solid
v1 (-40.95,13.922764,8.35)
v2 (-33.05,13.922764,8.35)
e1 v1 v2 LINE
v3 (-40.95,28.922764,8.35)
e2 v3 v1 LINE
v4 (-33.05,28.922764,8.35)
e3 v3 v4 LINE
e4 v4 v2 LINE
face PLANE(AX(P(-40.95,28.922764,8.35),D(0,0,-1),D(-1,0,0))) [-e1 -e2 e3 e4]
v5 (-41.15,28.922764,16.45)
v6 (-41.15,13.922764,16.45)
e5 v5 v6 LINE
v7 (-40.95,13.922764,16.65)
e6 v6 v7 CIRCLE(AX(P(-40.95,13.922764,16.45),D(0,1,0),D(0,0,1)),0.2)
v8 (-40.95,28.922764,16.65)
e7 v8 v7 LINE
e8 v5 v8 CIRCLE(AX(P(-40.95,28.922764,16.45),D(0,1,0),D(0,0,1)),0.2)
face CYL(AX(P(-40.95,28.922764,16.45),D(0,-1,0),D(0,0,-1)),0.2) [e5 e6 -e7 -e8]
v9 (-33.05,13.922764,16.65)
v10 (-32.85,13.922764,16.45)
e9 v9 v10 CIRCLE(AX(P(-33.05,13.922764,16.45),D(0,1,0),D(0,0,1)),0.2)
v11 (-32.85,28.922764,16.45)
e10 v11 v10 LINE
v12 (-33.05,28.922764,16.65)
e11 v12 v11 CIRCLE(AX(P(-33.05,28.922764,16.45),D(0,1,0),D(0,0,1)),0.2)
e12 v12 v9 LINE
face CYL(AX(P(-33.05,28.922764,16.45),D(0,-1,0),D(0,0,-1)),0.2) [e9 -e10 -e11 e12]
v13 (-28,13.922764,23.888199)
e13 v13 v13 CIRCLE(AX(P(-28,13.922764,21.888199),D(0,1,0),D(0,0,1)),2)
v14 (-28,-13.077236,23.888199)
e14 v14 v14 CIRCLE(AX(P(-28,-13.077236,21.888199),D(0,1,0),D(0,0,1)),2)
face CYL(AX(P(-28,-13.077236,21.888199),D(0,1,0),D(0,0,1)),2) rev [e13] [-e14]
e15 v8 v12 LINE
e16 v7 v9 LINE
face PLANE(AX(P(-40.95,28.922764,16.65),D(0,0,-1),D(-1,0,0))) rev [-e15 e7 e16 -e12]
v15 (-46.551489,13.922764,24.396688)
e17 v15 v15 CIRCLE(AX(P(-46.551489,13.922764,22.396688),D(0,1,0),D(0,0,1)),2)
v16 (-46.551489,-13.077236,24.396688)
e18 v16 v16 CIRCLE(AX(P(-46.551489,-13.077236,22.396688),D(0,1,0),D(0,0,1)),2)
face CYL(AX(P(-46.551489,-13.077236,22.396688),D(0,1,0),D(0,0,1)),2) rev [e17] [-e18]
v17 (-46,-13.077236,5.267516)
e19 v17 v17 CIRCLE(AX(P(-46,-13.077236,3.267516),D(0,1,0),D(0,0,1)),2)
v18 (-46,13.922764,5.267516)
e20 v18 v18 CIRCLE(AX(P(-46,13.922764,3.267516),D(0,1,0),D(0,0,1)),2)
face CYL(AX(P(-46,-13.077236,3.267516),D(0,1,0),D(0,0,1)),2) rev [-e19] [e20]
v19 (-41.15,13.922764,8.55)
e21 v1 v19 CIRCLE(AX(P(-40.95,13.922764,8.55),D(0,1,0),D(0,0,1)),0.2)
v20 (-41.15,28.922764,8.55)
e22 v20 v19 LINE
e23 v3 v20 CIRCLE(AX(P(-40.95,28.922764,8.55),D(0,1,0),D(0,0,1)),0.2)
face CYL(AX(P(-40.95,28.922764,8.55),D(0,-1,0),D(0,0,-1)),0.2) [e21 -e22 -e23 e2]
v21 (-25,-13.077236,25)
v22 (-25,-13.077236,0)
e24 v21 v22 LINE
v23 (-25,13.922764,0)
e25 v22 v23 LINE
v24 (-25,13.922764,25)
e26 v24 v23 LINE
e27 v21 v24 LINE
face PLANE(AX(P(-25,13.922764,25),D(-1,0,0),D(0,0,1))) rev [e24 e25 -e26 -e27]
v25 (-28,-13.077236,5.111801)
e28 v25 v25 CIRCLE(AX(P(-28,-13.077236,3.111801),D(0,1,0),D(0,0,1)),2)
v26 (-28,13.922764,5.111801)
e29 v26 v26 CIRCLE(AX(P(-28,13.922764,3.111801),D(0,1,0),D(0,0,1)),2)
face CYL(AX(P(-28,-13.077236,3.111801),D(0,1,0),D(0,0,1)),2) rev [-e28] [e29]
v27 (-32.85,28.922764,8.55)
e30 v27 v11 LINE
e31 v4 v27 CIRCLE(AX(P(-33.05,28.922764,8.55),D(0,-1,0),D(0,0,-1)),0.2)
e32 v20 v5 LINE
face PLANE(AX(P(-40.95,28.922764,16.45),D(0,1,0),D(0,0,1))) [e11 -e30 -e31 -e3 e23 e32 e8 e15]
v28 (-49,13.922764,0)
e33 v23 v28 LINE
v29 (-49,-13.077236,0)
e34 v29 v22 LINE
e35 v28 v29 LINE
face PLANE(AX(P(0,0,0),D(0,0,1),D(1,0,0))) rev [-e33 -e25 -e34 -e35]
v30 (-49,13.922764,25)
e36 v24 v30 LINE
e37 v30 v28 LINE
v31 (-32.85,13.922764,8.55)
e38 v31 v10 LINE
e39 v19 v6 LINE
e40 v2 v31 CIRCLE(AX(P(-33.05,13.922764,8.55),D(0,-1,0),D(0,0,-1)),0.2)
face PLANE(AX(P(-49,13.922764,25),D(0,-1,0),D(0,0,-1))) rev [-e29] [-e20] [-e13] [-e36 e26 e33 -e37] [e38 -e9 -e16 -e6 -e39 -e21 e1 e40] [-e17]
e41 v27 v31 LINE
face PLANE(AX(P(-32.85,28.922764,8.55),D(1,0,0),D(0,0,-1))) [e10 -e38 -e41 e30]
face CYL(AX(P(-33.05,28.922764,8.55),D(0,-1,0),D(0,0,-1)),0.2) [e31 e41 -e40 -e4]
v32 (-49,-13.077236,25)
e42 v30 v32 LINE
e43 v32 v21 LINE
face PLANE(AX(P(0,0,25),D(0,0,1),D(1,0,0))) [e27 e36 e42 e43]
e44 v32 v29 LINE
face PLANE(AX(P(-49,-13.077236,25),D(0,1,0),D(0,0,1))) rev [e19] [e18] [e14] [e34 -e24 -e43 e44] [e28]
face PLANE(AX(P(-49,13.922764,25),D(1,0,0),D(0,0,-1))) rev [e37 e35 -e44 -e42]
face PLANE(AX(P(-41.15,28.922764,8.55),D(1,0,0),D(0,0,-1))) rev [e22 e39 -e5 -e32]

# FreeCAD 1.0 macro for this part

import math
import FreeCAD as App
import Part
import Sketcher

V = App.Vector
Q = App.Units.Quantity


def add_polygon(sketch, points):
    """Adds a closed chain of lines whose ends are joined by coincident constraints."""
    first, n = sketch.GeometryCount, len(points)
    for a, b in zip(points, points[1:] + points[:1]):
        sketch.addGeometry(Part.LineSegment(App.Vector(*a, 0), App.Vector(*b, 0)), False)
    for i in range(n):
        sketch.addConstraint(Sketcher.Constraint("Coincident", first + i, 2, first + (i + 1) % n, 1))

doc = App.newDocument("Part")
body = doc.addObject("PartDesign::Body", "Body")

# Sketch on XY plane
sketch1 = doc.addObject("Sketcher::SketchObject", "Sketch")
body.addObject(sketch1)
sketch1.AttachmentSupport = (doc.XY_Plane, [""])
sketch1.MapMode = "FlatFace"
add_polygon(sketch1, [(-49, 14), (-49, -13), (-25, -13), (-25, 14)])  # lines 0-3
sketch1.addConstraint([
    Sketcher.Constraint("Vertical", 0),
    Sketcher.Constraint("Horizontal", 1),
    Sketcher.Constraint("Vertical", 2),
    Sketcher.Constraint("Horizontal", 3),
    Sketcher.Constraint("DistanceX", 1, 1, 1, 2, Q("24 mm")),
    Sketcher.Constraint("DistanceY", 0, 2, 0, 1, Q("27 mm")),
    Sketcher.Constraint("DistanceX", 0, 2, -1, 1, Q("49 mm")),
    Sketcher.Constraint("DistanceY", 0, 2, -1, 1, Q("13.077236 mm")),
])
pad1 = doc.addObject("PartDesign::Pad", "Pad")
body.addObject(pad1)
pad1.Profile = sketch1
pad1.Length = 25

# Sketch on XZ plane
sketch2 = doc.addObject("Sketcher::SketchObject", "Sketch001")
body.addObject(sketch2)
sketch2.AttachmentSupport = (doc.XZ_Plane, [""])
sketch2.MapMode = "FlatFace"
sketch2.AttachmentOffset = App.Placement(V(0, 0, -13.922764), App.Rotation())
sketch2.addGeometry([
    Part.LineSegment(V(-33.05, 8.35, 0), V(-40.95, 8.35, 0)),  # 0
    Part.ArcOfCircle(Part.Circle(V(-40.95, 8.55, 0), V(0, 0, 1), 0.2), math.radians(-180), math.radians(-90)),  # 1
    Part.LineSegment(V(-41.15, 8.55, 0), V(-41.15, 16.45, 0)),  # 2
    Part.ArcOfCircle(Part.Circle(V(-40.95, 16.45, 0), V(0, 0, 1), 0.2), math.radians(90), math.radians(180)),  # 3
    Part.LineSegment(V(-40.95, 16.65, 0), V(-33.05, 16.65, 0)),  # 4
    Part.ArcOfCircle(Part.Circle(V(-33.05, 16.45, 0), V(0, 0, 1), 0.2), math.radians(0), math.radians(90)),  # 5
    Part.LineSegment(V(-32.85, 16.45, 0), V(-32.85, 8.55, 0)),  # 6
    Part.ArcOfCircle(Part.Circle(V(-33.05, 8.55, 0), V(0, 0, 1), 0.2), math.radians(-90), math.radians(0)),  # 7
], False)
sketch2.addConstraint([
    Sketcher.Constraint("Tangent", 0, 2, 1, 2),
    Sketcher.Constraint("Tangent", 1, 1, 2, 1),
    Sketcher.Constraint("Tangent", 2, 2, 3, 2),
    Sketcher.Constraint("Tangent", 3, 1, 4, 1),
    Sketcher.Constraint("Tangent", 4, 2, 5, 2),
    Sketcher.Constraint("Tangent", 5, 1, 6, 1),
    Sketcher.Constraint("Tangent", 6, 2, 7, 2),
    Sketcher.Constraint("Tangent", 7, 1, 0, 1),
    Sketcher.Constraint("Horizontal", 0),
    Sketcher.Constraint("Vertical", 2),
    Sketcher.Constraint("Horizontal", 4),
    Sketcher.Constraint("Vertical", 6),
    Sketcher.Constraint("Equal", 1, 3),
    Sketcher.Constraint("Equal", 3, 5),
    Sketcher.Constraint("Equal", 5, 7),
    Sketcher.Constraint("Equal", 4, 2),
    Sketcher.Constraint("Radius", 1, Q("0.2 mm")),
    Sketcher.Constraint("DistanceX", 0, 2, 0, 1, Q("7.9 mm")),
    Sketcher.Constraint("DistanceX", 1, 3, -1, 1, Q("40.95 mm")),
    Sketcher.Constraint("DistanceY", -1, 1, 1, 3, Q("8.55 mm")),
])
pad2 = doc.addObject("PartDesign::Pad", "Pad001")
body.addObject(pad2)
pad2.Profile = sketch2
pad2.Length = 15
pad2.Reversed = True

# Sketch on XZ plane
sketch3 = doc.addObject("Sketcher::SketchObject", "Sketch002")
body.addObject(sketch3)
sketch3.AttachmentSupport = (doc.XZ_Plane, [""])
sketch3.MapMode = "FlatFace"
sketch3.AttachmentOffset = App.Placement(V(0, 0, -13.922764), App.Rotation())
sketch3.addGeometry([
    Part.Circle(V(-46.6, 22.4, 0), V(0, 0, 1), 2),
    Part.Circle(V(-28, 21.9, 0), V(0, 0, 1), 2),
    Part.Circle(V(-46, 3.3, 0), V(0, 0, 1), 2),
    Part.Circle(V(-28, 3.1, 0), V(0, 0, 1), 2),
], False)
sketch3.addConstraint([
    Sketcher.Constraint("Equal", 0, 1),
    Sketcher.Constraint("Equal", 1, 2),
    Sketcher.Constraint("Equal", 2, 3),
    Sketcher.Constraint("Vertical", 1, 3, 3, 3),
    Sketcher.Constraint("Diameter", 0, Q("4 mm")),
    Sketcher.Constraint("DistanceX", 1, 3, -1, 1, Q("28 mm")),
    Sketcher.Constraint("DistanceX", 2, 3, -1, 1, Q("46 mm")),
    Sketcher.Constraint("DistanceY", -1, 1, 1, 3, Q("21.888199 mm")),
    Sketcher.Constraint("DistanceY", -1, 1, 3, 3, Q("3.111801 mm")),
    Sketcher.Constraint("DistanceX", 0, 3, -1, 1, Q("46.551489 mm")),
    Sketcher.Constraint("DistanceY", -1, 1, 0, 3, Q("22.396688 mm")),
    Sketcher.Constraint("DistanceY", -1, 1, 2, 3, Q("3.267516 mm")),
])
pocket1 = doc.addObject("PartDesign::Pocket", "Pocket")
body.addObject(pocket1)
pocket1.Profile = sketch3
pocket1.Length = 27
pocket1.Reversed = True

doc.recompute()
